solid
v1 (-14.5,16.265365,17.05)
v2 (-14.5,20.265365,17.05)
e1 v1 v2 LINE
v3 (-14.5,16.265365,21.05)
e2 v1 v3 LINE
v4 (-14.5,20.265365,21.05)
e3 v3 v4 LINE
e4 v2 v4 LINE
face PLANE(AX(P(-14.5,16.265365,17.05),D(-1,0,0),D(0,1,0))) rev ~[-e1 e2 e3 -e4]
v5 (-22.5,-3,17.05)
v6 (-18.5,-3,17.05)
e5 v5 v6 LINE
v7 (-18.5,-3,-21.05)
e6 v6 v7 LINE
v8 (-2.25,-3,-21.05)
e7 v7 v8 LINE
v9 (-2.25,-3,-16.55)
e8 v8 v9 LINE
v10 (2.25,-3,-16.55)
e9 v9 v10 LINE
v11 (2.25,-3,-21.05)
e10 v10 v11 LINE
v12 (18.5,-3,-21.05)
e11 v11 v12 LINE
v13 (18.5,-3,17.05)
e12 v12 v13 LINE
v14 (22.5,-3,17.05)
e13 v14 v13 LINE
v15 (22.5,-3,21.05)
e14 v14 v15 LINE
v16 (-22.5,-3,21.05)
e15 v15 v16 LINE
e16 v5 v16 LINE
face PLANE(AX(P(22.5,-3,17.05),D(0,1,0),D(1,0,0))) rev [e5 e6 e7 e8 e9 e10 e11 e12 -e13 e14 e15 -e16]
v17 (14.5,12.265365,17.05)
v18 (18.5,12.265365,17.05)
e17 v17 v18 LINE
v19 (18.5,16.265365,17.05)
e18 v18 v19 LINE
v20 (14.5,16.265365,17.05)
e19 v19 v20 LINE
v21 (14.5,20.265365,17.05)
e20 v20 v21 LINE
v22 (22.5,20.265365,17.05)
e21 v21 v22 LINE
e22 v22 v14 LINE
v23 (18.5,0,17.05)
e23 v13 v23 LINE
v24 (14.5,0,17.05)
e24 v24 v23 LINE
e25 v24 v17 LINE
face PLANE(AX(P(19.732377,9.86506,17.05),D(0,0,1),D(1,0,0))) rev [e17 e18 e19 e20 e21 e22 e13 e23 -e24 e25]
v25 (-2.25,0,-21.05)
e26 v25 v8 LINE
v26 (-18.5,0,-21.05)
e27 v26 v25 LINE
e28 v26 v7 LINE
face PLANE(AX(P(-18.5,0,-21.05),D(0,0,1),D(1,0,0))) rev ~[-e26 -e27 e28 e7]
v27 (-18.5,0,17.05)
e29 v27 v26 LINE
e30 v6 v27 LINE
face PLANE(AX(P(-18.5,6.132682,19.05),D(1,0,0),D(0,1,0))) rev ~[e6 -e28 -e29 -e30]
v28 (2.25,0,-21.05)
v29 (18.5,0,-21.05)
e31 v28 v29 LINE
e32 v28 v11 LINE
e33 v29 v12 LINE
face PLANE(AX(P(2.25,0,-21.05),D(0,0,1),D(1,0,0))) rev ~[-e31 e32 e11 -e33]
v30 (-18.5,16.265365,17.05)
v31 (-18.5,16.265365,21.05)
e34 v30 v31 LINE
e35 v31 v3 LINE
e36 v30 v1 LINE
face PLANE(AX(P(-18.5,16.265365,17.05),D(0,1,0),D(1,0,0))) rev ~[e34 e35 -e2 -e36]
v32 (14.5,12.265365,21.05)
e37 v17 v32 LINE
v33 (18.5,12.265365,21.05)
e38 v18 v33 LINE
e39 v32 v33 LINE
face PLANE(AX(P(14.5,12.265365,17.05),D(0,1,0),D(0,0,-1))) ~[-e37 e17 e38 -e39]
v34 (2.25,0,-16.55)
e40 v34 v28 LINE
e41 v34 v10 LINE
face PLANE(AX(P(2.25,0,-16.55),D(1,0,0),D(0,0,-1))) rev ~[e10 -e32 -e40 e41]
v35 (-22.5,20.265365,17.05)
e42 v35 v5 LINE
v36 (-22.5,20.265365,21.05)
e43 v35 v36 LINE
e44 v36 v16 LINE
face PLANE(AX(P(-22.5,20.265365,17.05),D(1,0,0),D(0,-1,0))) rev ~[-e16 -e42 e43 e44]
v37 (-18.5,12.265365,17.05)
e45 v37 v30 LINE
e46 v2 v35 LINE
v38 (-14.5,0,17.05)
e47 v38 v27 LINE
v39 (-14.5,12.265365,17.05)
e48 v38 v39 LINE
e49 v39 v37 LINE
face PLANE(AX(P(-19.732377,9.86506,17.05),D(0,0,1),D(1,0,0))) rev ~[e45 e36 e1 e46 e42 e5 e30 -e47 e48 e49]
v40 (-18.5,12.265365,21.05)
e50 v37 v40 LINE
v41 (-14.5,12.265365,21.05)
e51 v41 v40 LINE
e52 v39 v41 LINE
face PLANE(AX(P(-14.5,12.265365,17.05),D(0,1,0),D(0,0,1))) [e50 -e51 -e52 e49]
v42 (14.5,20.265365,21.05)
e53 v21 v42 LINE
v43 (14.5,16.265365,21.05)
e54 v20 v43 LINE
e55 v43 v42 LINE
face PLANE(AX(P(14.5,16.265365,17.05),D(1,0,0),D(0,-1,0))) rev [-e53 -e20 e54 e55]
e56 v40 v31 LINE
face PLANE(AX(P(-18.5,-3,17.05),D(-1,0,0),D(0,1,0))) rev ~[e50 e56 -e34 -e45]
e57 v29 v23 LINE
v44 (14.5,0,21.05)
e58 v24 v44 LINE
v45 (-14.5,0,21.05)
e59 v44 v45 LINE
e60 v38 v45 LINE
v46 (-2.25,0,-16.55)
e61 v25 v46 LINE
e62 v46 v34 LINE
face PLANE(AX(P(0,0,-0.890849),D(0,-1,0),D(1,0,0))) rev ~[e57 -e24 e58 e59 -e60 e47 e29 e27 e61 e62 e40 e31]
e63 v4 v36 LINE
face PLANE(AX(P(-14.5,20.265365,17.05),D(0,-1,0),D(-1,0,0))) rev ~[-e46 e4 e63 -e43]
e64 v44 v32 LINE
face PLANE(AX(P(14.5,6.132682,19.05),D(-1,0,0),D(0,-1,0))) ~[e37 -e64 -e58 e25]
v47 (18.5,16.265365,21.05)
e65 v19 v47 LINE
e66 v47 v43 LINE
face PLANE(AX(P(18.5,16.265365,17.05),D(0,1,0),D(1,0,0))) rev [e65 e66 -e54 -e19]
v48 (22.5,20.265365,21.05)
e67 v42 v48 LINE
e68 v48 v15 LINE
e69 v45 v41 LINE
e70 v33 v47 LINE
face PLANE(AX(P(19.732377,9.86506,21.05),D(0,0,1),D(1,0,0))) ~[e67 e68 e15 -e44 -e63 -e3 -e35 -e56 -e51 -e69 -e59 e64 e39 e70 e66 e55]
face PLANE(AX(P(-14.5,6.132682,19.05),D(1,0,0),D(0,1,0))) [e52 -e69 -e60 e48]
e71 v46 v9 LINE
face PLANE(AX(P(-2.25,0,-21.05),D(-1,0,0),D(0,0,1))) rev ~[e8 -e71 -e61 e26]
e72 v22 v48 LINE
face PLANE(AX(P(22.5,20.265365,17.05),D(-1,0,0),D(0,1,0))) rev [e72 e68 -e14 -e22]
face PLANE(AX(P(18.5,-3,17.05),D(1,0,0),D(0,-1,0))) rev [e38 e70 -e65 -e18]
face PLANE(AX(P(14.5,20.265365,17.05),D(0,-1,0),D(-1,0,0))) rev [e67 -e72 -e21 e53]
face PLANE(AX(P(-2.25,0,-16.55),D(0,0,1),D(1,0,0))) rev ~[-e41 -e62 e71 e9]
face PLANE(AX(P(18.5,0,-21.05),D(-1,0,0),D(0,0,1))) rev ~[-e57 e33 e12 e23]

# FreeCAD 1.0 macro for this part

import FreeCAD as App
import Part
import Sketcher

V = App.Vector
Q = App.Units.Quantity


def add_polygon(sketch, points):
    """Adds a closed chain of lines whose ends are joined by coincident constraints."""
    first, n = sketch.GeometryCount, len(points)
    for a, b in zip(points, points[1:] + points[:1]):
        sketch.addGeometry(Part.LineSegment(App.Vector(*a, 0), App.Vector(*b, 0)), False)
    for i in range(n):
        sketch.addConstraint(Sketcher.Constraint("Coincident", first + i, 2, first + (i + 1) % n, 1))

doc = App.newDocument("Part")
body = doc.addObject("PartDesign::Body", "Body")

# Sketch on XZ plane
sketch1 = body.newObject("Sketcher::SketchObject", "Sketch")
sketch1.AttachmentSupport = (doc.getObject("XZ_Plane"), [""])
sketch1.MapMode = "FlatFace"
add_polygon(sketch1, [(18.5, 21.05), (-18.5, 21.05), (-18.5, -21.05), (-2.25, -21.05), (-2.25, -16.55), (2.25, -16.55), (2.25, -21.05), (18.5, -21.05)])  # lines 0-7
sketch1.addConstraint(Sketcher.Constraint("Horizontal", 0))
sketch1.addConstraint(Sketcher.Constraint("Vertical", 1))
sketch1.addConstraint(Sketcher.Constraint("Horizontal", 2))
sketch1.addConstraint(Sketcher.Constraint("Vertical", 3))
sketch1.addConstraint(Sketcher.Constraint("Horizontal", 4))
sketch1.addConstraint(Sketcher.Constraint("Vertical", 5))
sketch1.addConstraint(Sketcher.Constraint("Horizontal", 6))
sketch1.addConstraint(Sketcher.Constraint("Vertical", 7))
sketch1.addConstraint(Sketcher.Constraint("Symmetric", 0, 2, 6, 2, -1, 1))
sketch1.addConstraint(Sketcher.Constraint("Symmetric", 2, 2, 5, 2, -2))
sketch1.addConstraint(Sketcher.Constraint("Equal", 4, 3))
sketch1.addConstraint(Sketcher.Constraint("DistanceX", 0, 2, 0, 1, Q("37 mm")))
sketch1.addConstraint(Sketcher.Constraint("DistanceX", 4, 1, 4, 2, Q("4.5 mm")))
sketch1.addConstraint(Sketcher.Constraint("DistanceY", 1, 2, 1, 1, Q("42.1 mm")))
pad1 = body.newObject("PartDesign::Pad", "Pad")
pad1.Profile = sketch1
pad1.Length = 3

# Sketch on YZ plane
sketch2 = body.newObject("Sketcher::SketchObject", "Sketch001")
sketch2.AttachmentSupport = (doc.getObject("YZ_Plane"), [""])
sketch2.MapMode = "FlatFace"
sketch2.AttachmentOffset = App.Placement(V(0, 0, -14.5), App.Rotation())
add_polygon(sketch2, [(0, 21.05), (0, 17.05), (12.265365, 17.05), (12.265365, 21.05)])  # lines 0-3
sketch2.addConstraint(Sketcher.Constraint("Vertical", 0))
sketch2.addConstraint(Sketcher.Constraint("Horizontal", 1))
sketch2.addConstraint(Sketcher.Constraint("Vertical", 2))
sketch2.addConstraint(Sketcher.Constraint("Horizontal", 3))
sketch2.addConstraint(Sketcher.Constraint("PointOnObject", 0, 2, -2))
sketch2.addConstraint(Sketcher.Constraint("DistanceY", 0, 2, 0, 1, Q("4 mm")))
sketch2.addConstraint(Sketcher.Constraint("DistanceY", -1, 1, 0, 2, Q("17.05 mm")))
sketch2.addConstraint(Sketcher.Constraint("DistanceX", 1, 1, 1, 2, Q("12.265365 mm")))
pad2 = body.newObject("PartDesign::Pad", "Pad001")
pad2.Profile = sketch2
pad2.Length = 4
pad2.Reversed = True

# Sketch on XY plane
sketch3 = body.newObject("Sketcher::SketchObject", "Sketch002")
sketch3.AttachmentSupport = (doc.getObject("XY_Plane"), [""])
sketch3.MapMode = "FlatFace"
sketch3.AttachmentOffset = App.Placement(V(0, 0, 17.05), App.Rotation())
add_polygon(sketch3, [(-22.5, -3), (-18.5, -3), (-18.5, 16.265365), (-14.5, 16.265365), (-14.5, 20.265365), (-22.5, 20.265365)])  # lines 0-5
sketch3.addConstraint(Sketcher.Constraint("Horizontal", 0))
sketch3.addConstraint(Sketcher.Constraint("Vertical", 1))
sketch3.addConstraint(Sketcher.Constraint("Horizontal", 2))
sketch3.addConstraint(Sketcher.Constraint("Vertical", 3))
sketch3.addConstraint(Sketcher.Constraint("Horizontal", 4))
sketch3.addConstraint(Sketcher.Constraint("Vertical", 5))
sketch3.addConstraint(Sketcher.Constraint("Equal", 0, 2))
sketch3.addConstraint(Sketcher.Constraint("Equal", 2, 3))
sketch3.addConstraint(Sketcher.Constraint("DistanceX", 0, 1, 0, 2, Q("4 mm")))
sketch3.addConstraint(Sketcher.Constraint("DistanceY", 0, 2, -1, 1, Q("3 mm")))
sketch3.addConstraint(Sketcher.Constraint("DistanceX", 0, 2, -1, 1, Q("18.5 mm")))
sketch3.addConstraint(Sketcher.Constraint("DistanceY", 1, 1, 1, 2, Q("19.265365 mm")))
pad3 = body.newObject("PartDesign::Pad", "Pad002")
pad3.Profile = sketch3
pad3.Length = 4
body2 = doc.addObject("PartDesign::Body", "Body001")
doc.recompute()

body2.BaseFeature = body
doc.recompute()

mirroring = doc.addObject("Part::Mirroring", "Mirroring")
mirroring.Source = body
mirroring.Base = V(0, 0, 0)
mirroring.Normal = V(1, 0, 0)
body3 = doc.addObject("PartDesign::Body", "Body002")
body3.BaseFeature = mirroring
boolean = body2.newObject("PartDesign::Boolean", "Boolean")
boolean.Type = "Fuse"
boolean.addObjects([body3])
doc.recompute()
mirroring.Visibility = False

doc.recompute()
